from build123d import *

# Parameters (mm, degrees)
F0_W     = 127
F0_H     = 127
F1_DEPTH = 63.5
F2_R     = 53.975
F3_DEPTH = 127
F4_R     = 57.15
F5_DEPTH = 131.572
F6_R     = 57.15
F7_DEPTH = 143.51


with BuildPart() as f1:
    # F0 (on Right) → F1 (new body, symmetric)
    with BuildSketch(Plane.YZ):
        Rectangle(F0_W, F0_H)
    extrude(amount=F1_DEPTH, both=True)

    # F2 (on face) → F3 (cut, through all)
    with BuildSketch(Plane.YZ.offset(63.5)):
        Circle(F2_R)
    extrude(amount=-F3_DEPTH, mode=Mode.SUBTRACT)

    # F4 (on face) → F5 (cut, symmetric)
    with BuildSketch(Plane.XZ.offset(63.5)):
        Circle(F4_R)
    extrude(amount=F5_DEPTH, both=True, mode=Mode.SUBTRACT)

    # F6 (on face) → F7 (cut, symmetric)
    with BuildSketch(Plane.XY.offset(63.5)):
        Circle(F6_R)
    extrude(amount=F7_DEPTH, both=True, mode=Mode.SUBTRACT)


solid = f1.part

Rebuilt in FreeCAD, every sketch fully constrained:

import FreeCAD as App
import Part
import Sketcher

V = App.Vector
Q = App.Units.Quantity

doc = App.newDocument("Part")
body = doc.addObject("PartDesign::Body", "Body")

sketch1 = body.newObject("Sketcher::SketchObject", "Sketch")
sketch1.AttachmentSupport = (doc.getObject("YZ_Plane"), [""])
sketch1.MapMode = "FlatFace"
sketch1.addGeometry([
    Part.LineSegment(V(-64, 64, 0), V(-64, -64, 0)),
    Part.LineSegment(V(-64, -64, 0), V(64, -64, 0)),
    Part.LineSegment(V(64, -64, 0), V(64, 64, 0)),
    Part.LineSegment(V(64, 64, 0), V(-64, 64, 0)),
], False)
sketch1.addConstraint([
    Sketcher.Constraint("Coincident", 0, 2, 1, 1),
    Sketcher.Constraint("Coincident", 1, 2, 2, 1),
    Sketcher.Constraint("Coincident", 2, 2, 3, 1),
    Sketcher.Constraint("Coincident", 3, 2, 0, 1),
    Sketcher.Constraint("Vertical", 0),
    Sketcher.Constraint("Horizontal", 1),
    Sketcher.Constraint("Vertical", 2),
    Sketcher.Constraint("Horizontal", 3),
    Sketcher.Constraint("Symmetric", 0, 2, 2, 2, -1, 1),
    Sketcher.Constraint("Equal", 3, 0),
    Sketcher.Constraint("DistanceX", 1, 1, 1, 2, Q("5 in")),
])
pad1 = body.newObject("PartDesign::Pad", "Pad")
pad1.Profile = sketch1
pad1.Length = Q("5 in")
pad1.Midplane = True

sketch2 = body.newObject("Sketcher::SketchObject", "Sketch001")
sketch2.AttachmentSupport = (doc.getObject("YZ_Plane"), [""])
sketch2.MapMode = "FlatFace"
sketch2.AttachmentOffset = App.Placement(V(0, 0, 2.5 * 25.4), App.Rotation())
sketch2.addGeometry(Part.Circle(V(0, 0, 0), V(0, 0, 1), 54), False)
sketch2.addConstraint([
    Sketcher.Constraint("Coincident", 0, 3, -1, 1),
    Sketcher.Constraint("Diameter", 0, Q("4.25 in")),
])
pocket1 = body.newObject("PartDesign::Pocket", "Pocket")
pocket1.Profile = sketch2
pocket1.Type = "ThroughAll"

sketch3 = body.newObject("Sketcher::SketchObject", "Sketch002")
sketch3.AttachmentSupport = (doc.getObject("XZ_Plane"), [""])
sketch3.MapMode = "FlatFace"
sketch3.AttachmentOffset = App.Placement(V(0, 0, 2.5 * 25.4), App.Rotation())
sketch3.addGeometry(Part.Circle(V(0, 0, 0), V(0, 0, 1), 57), False)
sketch3.addConstraint([
    Sketcher.Constraint("Coincident", 0, 3, -1, 1),
    Sketcher.Constraint("Diameter", 0, Q("4.5 in")),
])
pocket2 = body.newObject("PartDesign::Pocket", "Pocket001")
pocket2.Profile = sketch3
pocket2.Length = Q("10.36 in")
pocket2.Midplane = True

sketch4 = body.newObject("Sketcher::SketchObject", "Sketch003")
sketch4.AttachmentSupport = (doc.getObject("XY_Plane"), [""])
sketch4.MapMode = "FlatFace"
sketch4.AttachmentOffset = App.Placement(V(0, 0, 2.5 * 25.4), App.Rotation())
sketch4.addGeometry(Part.Circle(V(0, 0, 0), V(0, 0, 1), 57), False)
sketch4.addConstraint([
    Sketcher.Constraint("Coincident", 0, 3, -1, 1),
    Sketcher.Constraint("Diameter", 0, Q("4.5 in")),
])
pocket3 = body.newObject("PartDesign::Pocket", "Pocket002")
pocket3.Profile = sketch4
pocket3.Length = Q("11.3 in")
pocket3.Midplane = True

doc.recompute()
